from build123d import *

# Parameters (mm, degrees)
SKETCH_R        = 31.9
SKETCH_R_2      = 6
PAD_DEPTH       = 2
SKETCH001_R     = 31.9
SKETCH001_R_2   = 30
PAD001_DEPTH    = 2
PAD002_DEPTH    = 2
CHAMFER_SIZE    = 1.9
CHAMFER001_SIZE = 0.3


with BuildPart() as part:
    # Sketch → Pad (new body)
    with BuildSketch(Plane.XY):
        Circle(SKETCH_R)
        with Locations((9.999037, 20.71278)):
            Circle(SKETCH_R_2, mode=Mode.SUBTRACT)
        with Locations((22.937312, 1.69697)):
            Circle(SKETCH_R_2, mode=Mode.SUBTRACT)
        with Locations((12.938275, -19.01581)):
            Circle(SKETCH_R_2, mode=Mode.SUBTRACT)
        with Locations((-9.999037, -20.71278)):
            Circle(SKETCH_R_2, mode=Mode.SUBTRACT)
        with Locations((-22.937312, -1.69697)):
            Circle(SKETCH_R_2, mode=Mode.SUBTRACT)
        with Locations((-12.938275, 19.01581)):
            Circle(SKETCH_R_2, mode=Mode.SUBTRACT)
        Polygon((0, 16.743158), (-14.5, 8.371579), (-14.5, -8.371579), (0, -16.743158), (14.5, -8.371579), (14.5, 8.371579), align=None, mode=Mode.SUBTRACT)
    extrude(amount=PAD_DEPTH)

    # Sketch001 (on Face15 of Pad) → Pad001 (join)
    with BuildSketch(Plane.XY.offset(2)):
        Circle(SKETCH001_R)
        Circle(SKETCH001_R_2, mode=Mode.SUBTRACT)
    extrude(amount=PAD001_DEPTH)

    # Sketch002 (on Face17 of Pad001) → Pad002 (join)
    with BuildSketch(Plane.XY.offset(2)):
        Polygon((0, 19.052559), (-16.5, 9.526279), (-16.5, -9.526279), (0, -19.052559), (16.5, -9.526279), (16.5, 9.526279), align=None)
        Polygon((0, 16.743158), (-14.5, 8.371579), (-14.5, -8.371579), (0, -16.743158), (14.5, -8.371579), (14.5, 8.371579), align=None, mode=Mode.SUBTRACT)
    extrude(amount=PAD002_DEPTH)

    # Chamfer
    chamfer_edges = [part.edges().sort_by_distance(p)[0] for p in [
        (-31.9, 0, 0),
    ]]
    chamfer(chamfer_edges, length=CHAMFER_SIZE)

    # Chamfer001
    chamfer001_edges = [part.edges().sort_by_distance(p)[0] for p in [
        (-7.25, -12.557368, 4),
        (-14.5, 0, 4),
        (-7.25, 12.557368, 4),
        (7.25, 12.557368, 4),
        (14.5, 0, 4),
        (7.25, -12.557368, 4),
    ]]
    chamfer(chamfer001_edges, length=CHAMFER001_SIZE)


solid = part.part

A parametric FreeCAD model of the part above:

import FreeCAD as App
import Part
import Sketcher

V = App.Vector
Q = App.Units.Quantity


def edges_at(feature, points):
    """Names of the edges that pass closest to the given points."""
    edges = feature.Shape.Edges
    near = lambda p: min(range(len(edges)), key=lambda i: edges[i].distToShape(Part.Vertex(*p))[0])
    return sorted({f"Edge{near(p) + 1}" for p in points})


def add_polygon(sketch, points):
    """Adds a closed chain of lines whose ends are joined by coincident constraints."""
    first, n = sketch.GeometryCount, len(points)
    for a, b in zip(points, points[1:] + points[:1]):
        sketch.addGeometry(Part.LineSegment(App.Vector(*a, 0), App.Vector(*b, 0)), False)
    for i in range(n):
        sketch.addConstraint(Sketcher.Constraint("Coincident", first + i, 2, first + (i + 1) % n, 1))

doc = App.newDocument("Part")
body = doc.addObject("PartDesign::Body", "Body")

# Sketch on XY plane
sketch1 = doc.addObject("Sketcher::SketchObject", "Sketch")
body.addObject(sketch1)
sketch1.AttachmentSupport = (doc.XY_Plane, [""])
sketch1.MapMode = "FlatFace"
sketch1.addGeometry(Part.Circle(V(0, 0, 0), V(0, 0, 1), 31.9), False)  # 0
sketch1.addGeometry(Part.Circle(V(-9.999037, -20.71278, 0), V(0, 0, 1), 6), False)  # 1
sketch1.addGeometry(Part.Circle(V(-22.937312, -1.69697, 0), V(0, 0, 1), 6), False)  # 2
sketch1.addGeometry(Part.Circle(V(12.938275, -19.01581, 0), V(0, 0, 1), 6), False)  # 3
add_polygon(sketch1, [(-14.5, 8.371579), (0, 16.743158), (14.5, 8.371579), (14.5, -8.371579), (0, -16.743158), (-14.5, -8.371579)])  # lines 4-9
sketch1.addGeometry(Part.Circle(V(-12.938275, 19.01581, 0), V(0, 0, 1), 6), False)  # 10
sketch1.addGeometry(Part.Circle(V(22.937312, 1.69697, 0), V(0, 0, 1), 6), False)  # 11
sketch1.addGeometry(Part.Circle(V(9.999037, 20.71278, 0), V(0, 0, 1), 6), False)  # 12
sketch1.addConstraint([
    Sketcher.Constraint("Vertical", 6),
    Sketcher.Constraint("Vertical", 9),
    Sketcher.Constraint("Coincident", 0, 3, -1, 1),
    Sketcher.Constraint("Equal", 1, 2),
    Sketcher.Constraint("Equal", 2, 3),
    Sketcher.Constraint("Equal", 3, 10),
    Sketcher.Constraint("Equal", 10, 11),
    Sketcher.Constraint("Equal", 11, 12),
    Sketcher.Constraint("Symmetric", 3, 3, 10, 3, -1, 1),
    Sketcher.Constraint("Symmetric", 2, 3, 11, 3, -1, 1),
    Sketcher.Constraint("Symmetric", 1, 3, 12, 3, -1, 1),
    Sketcher.Constraint("Symmetric", 4, 2, 7, 2, -1, 1),
    Sketcher.Constraint("Symmetric", 5, 2, 8, 2, -1, 1),
    Sketcher.Constraint("PointOnObject", 4, 2, -2),
    Sketcher.Constraint("Parallel", 4, 7),
    Sketcher.Constraint("Horizontal", 6, 2, 8, 2),
    Sketcher.Constraint("Diameter", 1, Q("12 mm")),
    Sketcher.Constraint("Diameter", 0, Q("63.8 mm")),
    Sketcher.Constraint("Angle", 4, Q("30 deg")),
    Sketcher.Constraint("DistanceX", -1, 1, 5, 2, Q("14.5 mm")),
    Sketcher.Constraint("DistanceY", 6, 2, 6, 1, Q("16.743158 mm")),
    Sketcher.Constraint("DistanceY", 5, 2, 12, 3, Q("12.341201 mm")),
    Sketcher.Constraint("DistanceX", 2, 3, -1, 1, Q("22.937312 mm")),
    Sketcher.Constraint("DistanceY", 2, 3, -1, 1, Q("1.69697 mm")),
    Sketcher.Constraint("DistanceY", 3, 3, -1, 1, Q("19.01581 mm")),
    Sketcher.Constraint("DistanceX", 1, 3, 3, 3, Q("22.937312 mm")),
    Sketcher.Constraint("DistanceX", 10, 3, 1, 3, Q("2.939238 mm")),
])
pad1 = doc.addObject("PartDesign::Pad", "Pad")
body.addObject(pad1)
pad1.Profile = sketch1
pad1.Length = 2

# Sketch on XY plane
sketch2 = doc.addObject("Sketcher::SketchObject", "Sketch001")
body.addObject(sketch2)
sketch2.AttachmentSupport = (doc.XY_Plane, [""])
sketch2.MapMode = "FlatFace"
sketch2.AttachmentOffset = App.Placement(V(0, 0, 2), App.Rotation())
sketch2.addGeometry([
    Part.Circle(V(0, 0, 0), V(0, 0, 1), 31.9),
    Part.Circle(V(0, 0, 0), V(0, 0, 1), 30),
], False)
sketch2.addConstraint([
    Sketcher.Constraint("Coincident", 0, 3, -1, 1),
    Sketcher.Constraint("Coincident", 1, 3, -1, 1),
    Sketcher.Constraint("Diameter", 1, Q("60 mm")),
    Sketcher.Constraint("Diameter", 0, Q("63.8 mm")),
])
pad2 = doc.addObject("PartDesign::Pad", "Pad001")
body.addObject(pad2)
pad2.Profile = sketch2
pad2.Length = 2

# Sketch on XY plane
sketch3 = doc.addObject("Sketcher::SketchObject", "Sketch002")
body.addObject(sketch3)
sketch3.AttachmentSupport = (doc.XY_Plane, [""])
sketch3.MapMode = "FlatFace"
sketch3.AttachmentOffset = App.Placement(V(0, 0, 2), App.Rotation())
add_polygon(sketch3, [(0, 19.052559), (-16.5, 9.526279), (-16.5, -9.526279), (0, -19.052559), (16.5, -9.526279), (16.5, 9.526279)])  # lines 0-5
add_polygon(sketch3, [(-14.5, 8.371579), (0, 16.743158), (14.5, 8.371579), (14.5, -8.371579), (0, -16.743158), (-14.5, -8.371579)])  # lines 6-11
sketch3.addConstraint([
    Sketcher.Constraint("Vertical", 1),
    Sketcher.Constraint("Vertical", 4),
    Sketcher.Constraint("Vertical", 8),
    Sketcher.Constraint("Vertical", 11),
    Sketcher.Constraint("Symmetric", 0, 2, 3, 2, -1, 1),
    Sketcher.Constraint("Symmetric", 2, 2, 5, 2, -1, 1),
    Sketcher.Constraint("Symmetric", 6, 2, 9, 2, -1, 1),
    Sketcher.Constraint("Symmetric", 7, 2, 10, 2, -1, 1),
    Sketcher.Constraint("PointOnObject", 2, 2, -2),
    Sketcher.Constraint("PointOnObject", 6, 2, -2),
    Sketcher.Constraint("Parallel", 2, 5),
    Sketcher.Constraint("Parallel", 3, 6),
    Sketcher.Constraint("Parallel", 5, 7),
    Sketcher.Constraint("Parallel", 6, 9),
    Sketcher.Constraint("Horizontal", 1, 2, 3, 2),
    Sketcher.Constraint("Angle", 0, Q("-149.999999 deg")),
    Sketcher.Constraint("DistanceX", 1, 2, 3, 2, Q("33 mm")),
    Sketcher.Constraint("DistanceX", 7, 2, 4, 2, Q("2 mm")),
    Sketcher.Constraint("DistanceY", 1, 2, 1, 1, Q("19.052558 mm")),
    Sketcher.Constraint("DistanceY", 8, 2, 8, 1, Q("16.743158 mm")),
])
pad3 = doc.addObject("PartDesign::Pad", "Pad002")
body.addObject(pad3)
pad3.Profile = sketch3
pad3.Length = 2
doc.recompute()

chamfer = doc.addObject("PartDesign::Chamfer", "Chamfer")
body.addObject(chamfer)
chamfer.Base = (pad3, edges_at(pad3, [(-31.9, 0, 0)]))
chamfer.Size = 1.9
doc.recompute()

chamfer2 = doc.addObject("PartDesign::Chamfer", "Chamfer001")
body.addObject(chamfer2)
chamfer2.Base = (chamfer, edges_at(chamfer, [
    (-7.25, -12.557, 4),
    (-14.5, 0, 4),
    (-7.25, 12.557, 4),
    (7.25, 12.557, 4),
    (14.5, 0, 4),
    (7.25, -12.557, 4),
]))
chamfer2.Size = 0.3

doc.recompute()
